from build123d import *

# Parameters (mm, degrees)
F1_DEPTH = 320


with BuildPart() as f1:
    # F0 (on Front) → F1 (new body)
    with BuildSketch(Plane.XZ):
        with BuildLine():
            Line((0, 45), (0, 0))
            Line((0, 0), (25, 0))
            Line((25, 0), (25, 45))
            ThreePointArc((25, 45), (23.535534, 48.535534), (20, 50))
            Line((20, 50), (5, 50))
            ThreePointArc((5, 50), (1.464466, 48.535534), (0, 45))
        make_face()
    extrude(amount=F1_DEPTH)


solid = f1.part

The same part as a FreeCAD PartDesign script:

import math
import FreeCAD as App
import Part
import Sketcher
from FreeCAD import Vector
Q = App.Units.Quantity

doc = App.newDocument("Part")
body = doc.addObject("PartDesign::Body", "Body")

sketch1 = doc.addObject("Sketcher::SketchObject", "Sketch")
body.addObject(sketch1)
sketch1.AttachmentSupport = (doc.XZ_Plane, [""])
sketch1.MapMode = "FlatFace"
sketch1.addGeometry([
    Part.LineSegment(Vector(0, 45, 0), Vector(0, 0, 0)),
    Part.LineSegment(Vector(0, 0, 0), Vector(25, 0, 0)),
    Part.LineSegment(Vector(25, 0, 0), Vector(25, 45, 0)),
    Part.ArcOfCircle(Part.Circle(Vector(20, 45, 0), Vector(0, 0, 1), 5), math.radians(0), math.radians(90)),
    Part.LineSegment(Vector(20, 50, 0), Vector(5, 50, 0)),
    Part.ArcOfCircle(Part.Circle(Vector(5, 45, 0), Vector(0, 0, 1), 5), math.radians(90), math.radians(180)),
], False)
sketch1.addConstraint([
    Sketcher.Constraint("Coincident", 0, 2, 1, 1),
    Sketcher.Constraint("Coincident", 1, 2, 2, 1),
    Sketcher.Constraint("Tangent", 2, 2, 3, 1),
    Sketcher.Constraint("Tangent", 3, 2, 4, 1),
    Sketcher.Constraint("Tangent", 4, 2, 5, 1),
    Sketcher.Constraint("Tangent", 5, 2, 0, 1),
    Sketcher.Constraint("Vertical", 0),
    Sketcher.Constraint("Horizontal", 1),
    Sketcher.Constraint("Vertical", 2),
    Sketcher.Constraint("Horizontal", 4),
    Sketcher.Constraint("Coincident", 0, 2, -1, 1),
    Sketcher.Constraint("Equal", 3, 5),
    Sketcher.Constraint("Radius", 3, Q("5 mm")),
    Sketcher.Constraint("DistanceX", 1, 1, 1, 2, Q("25 mm")),
    Sketcher.Constraint("DistanceY", 0, 2, 0, 1, Q("45 mm")),
])
pad1 = doc.addObject("PartDesign::Pad", "Pad")
body.addObject(pad1)
pad1.Profile = sketch1
pad1.Length = 320

doc.recompute()
